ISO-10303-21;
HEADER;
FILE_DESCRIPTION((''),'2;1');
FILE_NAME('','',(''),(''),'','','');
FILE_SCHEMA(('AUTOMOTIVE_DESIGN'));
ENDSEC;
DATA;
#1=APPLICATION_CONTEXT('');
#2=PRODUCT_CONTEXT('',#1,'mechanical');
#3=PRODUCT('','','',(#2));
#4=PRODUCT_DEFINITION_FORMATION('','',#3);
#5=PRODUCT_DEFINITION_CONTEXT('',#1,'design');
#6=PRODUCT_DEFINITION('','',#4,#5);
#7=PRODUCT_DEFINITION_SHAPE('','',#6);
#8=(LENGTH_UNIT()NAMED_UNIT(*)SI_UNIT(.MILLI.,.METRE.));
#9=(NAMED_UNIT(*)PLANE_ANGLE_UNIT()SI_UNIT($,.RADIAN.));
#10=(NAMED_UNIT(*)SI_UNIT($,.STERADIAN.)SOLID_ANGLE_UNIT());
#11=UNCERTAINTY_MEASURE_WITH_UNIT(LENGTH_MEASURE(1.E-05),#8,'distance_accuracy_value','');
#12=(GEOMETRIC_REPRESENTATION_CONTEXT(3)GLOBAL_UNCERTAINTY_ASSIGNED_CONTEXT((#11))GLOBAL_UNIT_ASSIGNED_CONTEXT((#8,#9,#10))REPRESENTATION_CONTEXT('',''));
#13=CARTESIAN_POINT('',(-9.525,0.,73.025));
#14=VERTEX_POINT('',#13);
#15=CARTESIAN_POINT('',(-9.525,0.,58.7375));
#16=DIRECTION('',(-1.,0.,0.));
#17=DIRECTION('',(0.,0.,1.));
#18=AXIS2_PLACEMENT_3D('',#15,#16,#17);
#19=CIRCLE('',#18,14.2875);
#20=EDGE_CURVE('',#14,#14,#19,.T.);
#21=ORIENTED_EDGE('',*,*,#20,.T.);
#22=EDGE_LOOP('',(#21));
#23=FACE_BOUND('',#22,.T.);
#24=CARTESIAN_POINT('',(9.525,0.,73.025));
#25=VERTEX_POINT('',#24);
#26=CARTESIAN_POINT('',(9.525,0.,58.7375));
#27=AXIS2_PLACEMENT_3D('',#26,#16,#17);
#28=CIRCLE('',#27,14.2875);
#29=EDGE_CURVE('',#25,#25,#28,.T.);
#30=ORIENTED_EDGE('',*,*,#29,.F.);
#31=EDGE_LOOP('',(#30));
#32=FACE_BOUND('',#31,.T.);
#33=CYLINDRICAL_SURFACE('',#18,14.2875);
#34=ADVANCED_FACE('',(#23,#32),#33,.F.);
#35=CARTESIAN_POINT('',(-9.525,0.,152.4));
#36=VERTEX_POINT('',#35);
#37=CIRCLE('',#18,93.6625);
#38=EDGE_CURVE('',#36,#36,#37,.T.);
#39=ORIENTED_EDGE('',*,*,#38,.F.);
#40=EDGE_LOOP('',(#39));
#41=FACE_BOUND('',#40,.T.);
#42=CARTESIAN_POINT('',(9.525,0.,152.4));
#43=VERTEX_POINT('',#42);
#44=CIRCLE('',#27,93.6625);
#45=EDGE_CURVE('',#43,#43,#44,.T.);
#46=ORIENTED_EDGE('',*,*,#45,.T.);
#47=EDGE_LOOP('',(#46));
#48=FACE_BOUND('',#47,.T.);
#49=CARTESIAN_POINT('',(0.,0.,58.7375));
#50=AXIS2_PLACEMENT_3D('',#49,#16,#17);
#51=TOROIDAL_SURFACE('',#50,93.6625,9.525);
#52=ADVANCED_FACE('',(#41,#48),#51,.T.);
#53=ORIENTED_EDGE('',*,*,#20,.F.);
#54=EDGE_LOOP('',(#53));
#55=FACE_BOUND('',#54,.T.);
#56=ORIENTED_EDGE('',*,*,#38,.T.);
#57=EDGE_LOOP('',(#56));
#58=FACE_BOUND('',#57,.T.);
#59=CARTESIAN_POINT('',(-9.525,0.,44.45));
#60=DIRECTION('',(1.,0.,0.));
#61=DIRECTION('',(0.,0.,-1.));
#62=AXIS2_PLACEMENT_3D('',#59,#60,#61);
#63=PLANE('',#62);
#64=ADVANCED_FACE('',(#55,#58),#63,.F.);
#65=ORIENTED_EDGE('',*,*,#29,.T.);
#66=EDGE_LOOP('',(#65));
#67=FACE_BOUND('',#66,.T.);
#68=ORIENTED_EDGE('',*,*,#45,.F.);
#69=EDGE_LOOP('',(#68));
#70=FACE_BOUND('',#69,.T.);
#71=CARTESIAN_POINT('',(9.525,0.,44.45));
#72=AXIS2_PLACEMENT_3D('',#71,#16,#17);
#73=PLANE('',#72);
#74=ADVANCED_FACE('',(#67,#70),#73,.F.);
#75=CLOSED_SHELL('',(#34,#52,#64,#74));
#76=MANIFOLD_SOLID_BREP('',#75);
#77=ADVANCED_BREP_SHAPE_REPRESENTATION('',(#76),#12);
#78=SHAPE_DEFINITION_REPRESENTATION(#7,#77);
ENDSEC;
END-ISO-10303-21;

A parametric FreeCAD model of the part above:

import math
import FreeCAD as App
import Part
import Sketcher
Q = App.Units.Quantity

doc = App.newDocument("Part")
body = doc.addObject("PartDesign::Body", "Body")

# Sketch on XZ plane
sketch1 = body.newObject("Sketcher::SketchObject", "Sketch")
sketch1.AttachmentSupport = (doc.getObject("XZ_Plane"), [""])
sketch1.MapMode = "FlatFace"
sketch1.addGeometry([
    Part.LineSegment(App.Vector(-9.525, 44.45, 0), App.Vector(9.525, 44.45, 0)),
    Part.LineSegment(App.Vector(9.525, 44.45, 0), App.Vector(9.525, -34.925, 0)),
    Part.ArcOfCircle(Part.Circle(App.Vector(0, -34.925, 0), App.Vector(0, 0, 1), 9.525), math.radians(180), math.radians(360)),
    Part.LineSegment(App.Vector(-9.525, -34.925, 0), App.Vector(-9.525, 44.45, 0)),
], False)
sketch1.addGeometry(Part.LineSegment(App.Vector(-9.525, 58.7375, 0), App.Vector(9.525, 58.7375, 0)), True)  # axis
sketch1.addConstraint([
    Sketcher.Constraint("Coincident", 0, 2, 1, 1),
    Sketcher.Constraint("Tangent", 1, 2, 2, 2),
    Sketcher.Constraint("Tangent", 2, 1, 3, 1),
    Sketcher.Constraint("Coincident", 3, 2, 0, 1),
    Sketcher.Constraint("Horizontal", 0),
    Sketcher.Constraint("Vertical", 1),
    Sketcher.Constraint("Vertical", 3),
    Sketcher.Constraint("Horizontal", 4),
    Sketcher.Constraint("PointOnObject", 2, 3, -2),
    Sketcher.Constraint("Vertical", 3, 2, 4, 1),
    Sketcher.Constraint("Vertical", 1, 2, 4, 2),
    Sketcher.Constraint("Radius", 2, Q("0.375 in")),
    Sketcher.Constraint("DistanceY", 1, 2, 1, 1, Q("3.125 in")),
    Sketcher.Constraint("DistanceY", -1, 1, 0, 2, Q("1.75 in")),
    Sketcher.Constraint("DistanceY", -1, 1, 4, 1, Q("2.3125 in")),
])
revolution = body.newObject("PartDesign::Revolution", "Revolution")
revolution.Profile = sketch1
revolution.ReferenceAxis = (sketch1, ["Axis0"])
revolution.Angle = 360

doc.recompute()
